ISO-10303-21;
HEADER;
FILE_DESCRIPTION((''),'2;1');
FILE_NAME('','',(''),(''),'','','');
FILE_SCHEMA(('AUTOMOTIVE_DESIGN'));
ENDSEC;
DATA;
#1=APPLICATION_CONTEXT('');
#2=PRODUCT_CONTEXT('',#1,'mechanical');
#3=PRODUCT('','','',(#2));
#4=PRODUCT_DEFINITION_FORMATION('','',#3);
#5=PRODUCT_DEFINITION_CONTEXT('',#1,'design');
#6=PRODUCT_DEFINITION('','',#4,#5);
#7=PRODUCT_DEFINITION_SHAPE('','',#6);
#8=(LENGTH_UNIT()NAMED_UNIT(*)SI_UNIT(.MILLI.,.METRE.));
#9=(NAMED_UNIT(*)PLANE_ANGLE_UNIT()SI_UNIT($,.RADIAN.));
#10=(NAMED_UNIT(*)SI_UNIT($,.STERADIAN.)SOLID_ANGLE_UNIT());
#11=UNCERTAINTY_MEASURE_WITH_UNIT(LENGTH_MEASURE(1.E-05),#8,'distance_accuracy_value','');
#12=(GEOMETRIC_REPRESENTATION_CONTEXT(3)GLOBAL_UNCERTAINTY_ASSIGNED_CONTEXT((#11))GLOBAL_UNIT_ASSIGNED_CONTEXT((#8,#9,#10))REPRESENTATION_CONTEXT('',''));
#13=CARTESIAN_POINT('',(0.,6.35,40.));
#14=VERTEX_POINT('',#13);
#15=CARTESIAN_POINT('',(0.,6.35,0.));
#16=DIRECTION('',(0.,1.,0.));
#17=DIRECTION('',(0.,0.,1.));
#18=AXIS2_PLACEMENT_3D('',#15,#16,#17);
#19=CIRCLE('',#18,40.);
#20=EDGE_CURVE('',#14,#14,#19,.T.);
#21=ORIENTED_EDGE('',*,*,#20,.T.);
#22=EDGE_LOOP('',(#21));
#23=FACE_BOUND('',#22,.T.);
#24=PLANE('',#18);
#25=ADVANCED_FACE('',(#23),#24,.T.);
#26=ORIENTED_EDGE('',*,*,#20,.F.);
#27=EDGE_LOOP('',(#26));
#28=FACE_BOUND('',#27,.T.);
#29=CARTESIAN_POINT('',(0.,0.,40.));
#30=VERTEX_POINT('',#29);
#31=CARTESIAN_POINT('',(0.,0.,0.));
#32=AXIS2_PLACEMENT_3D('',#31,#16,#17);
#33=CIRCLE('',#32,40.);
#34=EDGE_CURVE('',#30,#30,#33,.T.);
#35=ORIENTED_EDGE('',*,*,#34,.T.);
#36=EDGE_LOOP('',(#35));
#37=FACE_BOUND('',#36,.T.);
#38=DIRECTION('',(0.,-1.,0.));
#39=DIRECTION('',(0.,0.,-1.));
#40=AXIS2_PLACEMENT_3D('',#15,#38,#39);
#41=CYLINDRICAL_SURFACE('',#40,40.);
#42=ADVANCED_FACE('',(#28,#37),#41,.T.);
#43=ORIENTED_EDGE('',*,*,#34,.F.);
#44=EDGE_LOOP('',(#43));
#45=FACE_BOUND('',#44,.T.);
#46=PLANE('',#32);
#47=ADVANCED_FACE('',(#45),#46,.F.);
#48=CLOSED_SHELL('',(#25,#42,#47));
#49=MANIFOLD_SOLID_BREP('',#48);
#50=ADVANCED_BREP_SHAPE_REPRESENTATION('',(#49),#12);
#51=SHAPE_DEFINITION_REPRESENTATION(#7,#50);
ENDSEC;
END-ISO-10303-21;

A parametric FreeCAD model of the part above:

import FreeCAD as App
import Part
import Sketcher
from FreeCAD import Vector
Q = App.Units.Quantity

doc = App.newDocument("Part")
body = doc.addObject("PartDesign::Body", "Body")

sketch1 = body.newObject("Sketcher::SketchObject", "Sketch")
sketch1.AttachmentSupport = (doc.getObject("XZ_Plane"), [""])
sketch1.MapMode = "FlatFace"
sketch1.addGeometry(Part.Circle(Vector(0, 0, 0), Vector(0, 0, 1), 40), False)
sketch1.addConstraint(Sketcher.Constraint("Coincident", 0, 3, -1, 1))
sketch1.addConstraint(Sketcher.Constraint("Diameter", 0, Q("80 mm")))
pad1 = body.newObject("PartDesign::Pad", "Pad")
pad1.Profile = sketch1
pad1.Length = 6.35
pad1.Reversed = True

doc.recompute()
